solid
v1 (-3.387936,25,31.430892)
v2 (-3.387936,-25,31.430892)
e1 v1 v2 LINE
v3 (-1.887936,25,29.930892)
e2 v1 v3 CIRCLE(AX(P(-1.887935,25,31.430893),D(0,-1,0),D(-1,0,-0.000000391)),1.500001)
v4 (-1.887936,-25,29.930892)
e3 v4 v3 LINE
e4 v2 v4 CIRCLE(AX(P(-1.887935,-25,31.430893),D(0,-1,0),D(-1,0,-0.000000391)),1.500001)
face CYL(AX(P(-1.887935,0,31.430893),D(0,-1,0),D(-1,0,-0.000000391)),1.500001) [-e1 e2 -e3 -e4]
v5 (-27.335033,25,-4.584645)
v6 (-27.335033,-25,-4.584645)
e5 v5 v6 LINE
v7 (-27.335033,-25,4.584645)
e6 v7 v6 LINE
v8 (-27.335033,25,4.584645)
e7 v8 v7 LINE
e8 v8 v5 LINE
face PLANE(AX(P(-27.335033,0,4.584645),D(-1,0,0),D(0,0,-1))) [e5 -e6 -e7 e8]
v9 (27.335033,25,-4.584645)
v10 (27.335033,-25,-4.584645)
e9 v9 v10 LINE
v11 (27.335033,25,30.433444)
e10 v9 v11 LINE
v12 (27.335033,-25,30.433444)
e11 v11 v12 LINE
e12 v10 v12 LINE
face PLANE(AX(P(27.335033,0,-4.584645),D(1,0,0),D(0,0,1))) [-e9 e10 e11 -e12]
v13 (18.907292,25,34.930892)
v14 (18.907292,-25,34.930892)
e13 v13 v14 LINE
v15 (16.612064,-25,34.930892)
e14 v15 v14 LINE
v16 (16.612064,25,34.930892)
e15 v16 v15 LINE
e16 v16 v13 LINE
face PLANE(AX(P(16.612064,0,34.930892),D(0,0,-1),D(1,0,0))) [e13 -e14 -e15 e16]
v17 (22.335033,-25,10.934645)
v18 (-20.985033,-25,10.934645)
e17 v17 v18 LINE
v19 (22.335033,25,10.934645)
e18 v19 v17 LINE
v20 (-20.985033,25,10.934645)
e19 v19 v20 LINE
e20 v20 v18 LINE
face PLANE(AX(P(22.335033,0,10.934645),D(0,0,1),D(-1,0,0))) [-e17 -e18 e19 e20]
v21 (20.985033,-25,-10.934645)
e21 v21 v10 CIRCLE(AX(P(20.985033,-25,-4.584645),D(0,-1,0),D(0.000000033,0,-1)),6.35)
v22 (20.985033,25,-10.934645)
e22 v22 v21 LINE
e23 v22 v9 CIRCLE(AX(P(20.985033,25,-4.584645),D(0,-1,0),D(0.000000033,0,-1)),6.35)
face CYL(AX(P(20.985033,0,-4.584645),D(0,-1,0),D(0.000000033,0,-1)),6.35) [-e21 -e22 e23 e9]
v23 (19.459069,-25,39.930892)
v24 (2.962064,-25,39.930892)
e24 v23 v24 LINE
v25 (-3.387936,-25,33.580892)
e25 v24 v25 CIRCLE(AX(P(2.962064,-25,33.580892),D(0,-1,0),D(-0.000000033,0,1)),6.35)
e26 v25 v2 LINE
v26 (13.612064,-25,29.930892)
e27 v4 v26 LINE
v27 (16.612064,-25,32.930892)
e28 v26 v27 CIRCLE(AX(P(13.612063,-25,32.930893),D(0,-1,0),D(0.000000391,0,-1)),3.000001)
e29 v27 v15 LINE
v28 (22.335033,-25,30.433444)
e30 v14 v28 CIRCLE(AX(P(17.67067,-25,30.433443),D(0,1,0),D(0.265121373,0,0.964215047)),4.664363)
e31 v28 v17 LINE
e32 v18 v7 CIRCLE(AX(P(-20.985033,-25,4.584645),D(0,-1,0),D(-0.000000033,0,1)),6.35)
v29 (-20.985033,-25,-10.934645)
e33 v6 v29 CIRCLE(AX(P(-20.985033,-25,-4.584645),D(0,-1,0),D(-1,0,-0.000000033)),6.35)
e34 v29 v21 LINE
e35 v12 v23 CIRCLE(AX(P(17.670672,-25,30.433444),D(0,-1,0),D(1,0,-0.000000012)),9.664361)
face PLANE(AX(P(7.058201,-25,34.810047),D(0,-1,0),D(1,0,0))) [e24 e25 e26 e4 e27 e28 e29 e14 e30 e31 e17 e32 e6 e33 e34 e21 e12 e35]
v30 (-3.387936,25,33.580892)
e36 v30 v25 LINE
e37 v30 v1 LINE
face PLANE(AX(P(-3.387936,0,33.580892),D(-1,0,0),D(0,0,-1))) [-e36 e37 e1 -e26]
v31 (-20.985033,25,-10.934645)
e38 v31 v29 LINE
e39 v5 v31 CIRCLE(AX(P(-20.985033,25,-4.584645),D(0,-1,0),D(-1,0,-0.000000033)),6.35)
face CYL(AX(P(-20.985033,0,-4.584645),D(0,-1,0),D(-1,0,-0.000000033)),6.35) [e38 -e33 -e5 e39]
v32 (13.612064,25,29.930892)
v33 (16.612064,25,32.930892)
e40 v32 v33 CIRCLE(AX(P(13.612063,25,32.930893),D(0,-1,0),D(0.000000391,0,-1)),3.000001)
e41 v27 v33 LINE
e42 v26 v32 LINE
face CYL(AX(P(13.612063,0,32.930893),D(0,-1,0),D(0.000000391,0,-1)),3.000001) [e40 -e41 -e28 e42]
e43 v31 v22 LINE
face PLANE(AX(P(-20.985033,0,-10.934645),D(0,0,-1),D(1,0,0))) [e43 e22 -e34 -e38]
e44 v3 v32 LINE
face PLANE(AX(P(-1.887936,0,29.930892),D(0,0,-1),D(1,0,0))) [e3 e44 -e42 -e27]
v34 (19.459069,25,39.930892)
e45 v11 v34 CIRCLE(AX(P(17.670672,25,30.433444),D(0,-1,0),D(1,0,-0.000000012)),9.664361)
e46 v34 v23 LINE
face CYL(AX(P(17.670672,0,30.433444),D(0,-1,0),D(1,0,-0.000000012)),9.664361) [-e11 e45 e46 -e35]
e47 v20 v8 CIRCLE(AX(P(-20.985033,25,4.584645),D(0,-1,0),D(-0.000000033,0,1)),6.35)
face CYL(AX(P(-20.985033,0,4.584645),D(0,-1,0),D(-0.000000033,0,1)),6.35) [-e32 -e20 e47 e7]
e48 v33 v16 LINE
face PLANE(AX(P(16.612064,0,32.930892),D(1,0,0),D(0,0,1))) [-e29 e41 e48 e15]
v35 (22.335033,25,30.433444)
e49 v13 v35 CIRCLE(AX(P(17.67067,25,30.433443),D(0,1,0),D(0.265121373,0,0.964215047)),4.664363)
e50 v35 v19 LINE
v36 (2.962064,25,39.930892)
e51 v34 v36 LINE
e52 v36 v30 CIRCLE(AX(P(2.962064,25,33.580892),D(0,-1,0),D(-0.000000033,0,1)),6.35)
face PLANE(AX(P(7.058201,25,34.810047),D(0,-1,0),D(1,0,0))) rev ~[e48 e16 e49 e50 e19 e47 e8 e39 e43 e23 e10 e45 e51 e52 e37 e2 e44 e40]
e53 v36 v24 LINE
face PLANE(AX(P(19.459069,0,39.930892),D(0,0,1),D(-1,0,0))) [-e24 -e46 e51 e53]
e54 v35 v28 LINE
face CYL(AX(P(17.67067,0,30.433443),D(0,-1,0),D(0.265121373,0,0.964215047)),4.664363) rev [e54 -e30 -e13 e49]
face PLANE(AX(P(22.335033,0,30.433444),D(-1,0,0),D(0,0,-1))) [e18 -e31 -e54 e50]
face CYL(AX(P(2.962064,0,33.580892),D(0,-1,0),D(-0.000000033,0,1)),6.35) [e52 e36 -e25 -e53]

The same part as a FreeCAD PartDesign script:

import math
import FreeCAD as App
import Part
import Sketcher

V = App.Vector

doc = App.newDocument("Part")
body = doc.addObject("PartDesign::Body", "Body")

# Sketch on XZ plane
sketch1 = body.newObject("Sketcher::SketchObject", "Sketch")
sketch1.AttachmentSupport = (doc.getObject("XZ_Plane"), [""])
sketch1.MapMode = "FlatFace"
sketch1.addGeometry([
    Part.LineSegment(V(16.6, 32.9, 0), V(16.6, 34.9, 0)),  # 0
    Part.LineSegment(V(16.6, 34.9, 0), V(18.9, 34.9, 0)),  # 1
    Part.ArcOfCircle(Part.Circle(V(17.7, 30.4, 0), V(0, 0, 1), 4.7), math.radians(0), math.radians(75)),  # 2
    Part.LineSegment(V(22.3, 30.4, 0), V(22.3, 10.9, 0)),  # 3
    Part.LineSegment(V(22.3, 10.9, 0), V(-21, 10.9, 0)),  # 4
    Part.ArcOfCircle(Part.Circle(V(-21, 4.6, 0), V(0, 0, 1), 6.4), math.radians(90), math.radians(180)),  # 5
    Part.LineSegment(V(-27.3, 4.6, 0), V(-27.3, -4.6, 0)),  # 6
    Part.ArcOfCircle(Part.Circle(V(-21, -4.6, 0), V(0, 0, 1), 6.4), math.radians(-180), math.radians(-90)),  # 7
    Part.LineSegment(V(-21, -10.9, 0), V(21, -10.9, 0)),  # 8
    Part.ArcOfCircle(Part.Circle(V(21, -4.6, 0), V(0, 0, 1), 6.4), math.radians(-90), math.radians(0)),  # 9
    Part.LineSegment(V(27.3, -4.6, 0), V(27.3, 30.4, 0)),  # 10
    Part.ArcOfCircle(Part.Circle(V(17.7, 30.4, 0), V(0, 0, 1), 9.7), math.radians(0), math.radians(79)),  # 11
    Part.LineSegment(V(19.5, 39.9, 0), V(3, 39.9, 0)),  # 12
    Part.ArcOfCircle(Part.Circle(V(3, 33.6, 0), V(0, 0, 1), 6.4), math.radians(90), math.radians(180)),  # 13
    Part.LineSegment(V(-3.4, 33.6, 0), V(-3.4, 31.4, 0)),  # 14
    Part.ArcOfCircle(Part.Circle(V(-1.9, 31.4, 0), V(0, 0, 1), 1.5), math.radians(-180), math.radians(-90)),  # 15
    Part.LineSegment(V(-1.9, 29.9, 0), V(13.6, 29.9, 0)),  # 16
    Part.ArcOfCircle(Part.Circle(V(13.6, 32.9, 0), V(0, 0, 1), 3), math.radians(-90), math.radians(0)),  # 17
], False)
sketch1.addConstraint([
    Sketcher.Constraint("Coincident", 0, 2, 1, 1),
    Sketcher.Constraint("Coincident", 1, 2, 2, 2),
    Sketcher.Constraint("Tangent", 2, 1, 3, 1),
    Sketcher.Constraint("Coincident", 3, 2, 4, 1),
    Sketcher.Constraint("Tangent", 4, 2, 5, 1),
    Sketcher.Constraint("Tangent", 5, 2, 6, 1),
    Sketcher.Constraint("Tangent", 6, 2, 7, 1),
    Sketcher.Constraint("Tangent", 7, 2, 8, 1),
    Sketcher.Constraint("Tangent", 8, 2, 9, 1),
    Sketcher.Constraint("Tangent", 9, 2, 10, 1),
    Sketcher.Constraint("Tangent", 10, 2, 11, 1),
    Sketcher.Constraint("Coincident", 11, 2, 12, 1),
    Sketcher.Constraint("Tangent", 12, 2, 13, 1),
    Sketcher.Constraint("Tangent", 13, 2, 14, 1),
    Sketcher.Constraint("Tangent", 14, 2, 15, 1),
    Sketcher.Constraint("Tangent", 15, 2, 16, 1),
    Sketcher.Constraint("Tangent", 16, 2, 17, 1),
    Sketcher.Constraint("Tangent", 17, 2, 0, 1),
    Sketcher.Constraint("Vertical", 0),
    Sketcher.Constraint("Horizontal", 1),
    Sketcher.Constraint("Vertical", 3),
    Sketcher.Constraint("Horizontal", 4),
    Sketcher.Constraint("Vertical", 6),
    Sketcher.Constraint("Horizontal", 8),
    Sketcher.Constraint("Vertical", 10),
    Sketcher.Constraint("Horizontal", 12),
    Sketcher.Constraint("Vertical", 14),
    Sketcher.Constraint("Horizontal", 16),
    Sketcher.Constraint("Coincident", 11, 3, 2, 3),
    Sketcher.Constraint("Equal", 5, 7),
    Sketcher.Constraint("Equal", 7, 9),
    Sketcher.Constraint("Equal", 9, 13),
    Sketcher.Constraint("Symmetric", 5, 3, 9, 3, -1, 1),
    Sketcher.Constraint("Radius", 17, 3.000001),
    Sketcher.Constraint("Radius", 15, 1.500001),
    Sketcher.Constraint("DistanceY", 0, 1, 0, 2, 2.0),
    Sketcher.Constraint("Radius", 5, 6.35),
    Sketcher.Constraint("DistanceX", 16, 1, 16, 2, 15.5),
    Sketcher.Constraint("DistanceX", 3, 2, 9, 2, 5.0),
    Sketcher.Constraint("DistanceY", 1, 2, 11, 2, 5.0),
    Sketcher.Constraint("Radius", 11, 9.664361),
    Sketcher.Constraint("DistanceY", 3, 2, 3, 1, 19.498799),
    Sketcher.Constraint("DistanceX", 1, 1, 1, 2, 2.295228),
    Sketcher.Constraint("DistanceY", 6, 2, 6, 1, 9.16929),
    Sketcher.Constraint("DistanceX", 2, 3, 11, 2, 1.788399),
    Sketcher.Constraint("DistanceX", 4, 2, 4, 1, 43.320066),
])
pad1 = body.newObject("PartDesign::Pad", "Pad")
pad1.Profile = sketch1
pad1.Length = 50
pad1.Midplane = True

doc.recompute()
